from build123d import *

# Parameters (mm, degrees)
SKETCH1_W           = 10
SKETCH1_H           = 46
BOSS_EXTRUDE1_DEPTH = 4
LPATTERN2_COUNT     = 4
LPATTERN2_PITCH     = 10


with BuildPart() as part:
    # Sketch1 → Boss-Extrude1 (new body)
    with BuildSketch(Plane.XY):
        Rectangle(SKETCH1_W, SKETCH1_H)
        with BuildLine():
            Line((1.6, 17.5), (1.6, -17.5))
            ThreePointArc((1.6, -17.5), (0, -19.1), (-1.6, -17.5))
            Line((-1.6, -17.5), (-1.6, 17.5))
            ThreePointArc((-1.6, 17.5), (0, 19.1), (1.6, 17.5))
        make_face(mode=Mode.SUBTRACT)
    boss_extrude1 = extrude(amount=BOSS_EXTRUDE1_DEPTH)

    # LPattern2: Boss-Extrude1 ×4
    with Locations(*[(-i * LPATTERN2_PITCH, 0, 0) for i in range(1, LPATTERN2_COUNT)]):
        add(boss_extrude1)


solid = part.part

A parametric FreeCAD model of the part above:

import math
import FreeCAD as App
import Part
import Sketcher

V = App.Vector
Q = App.Units.Quantity

doc = App.newDocument("Part")
body = doc.addObject("PartDesign::Body", "Body")

sketch1 = body.newObject("Sketcher::SketchObject", "Sketch")
sketch1.AttachmentSupport = (doc.getObject("XY_Plane"), [""])
sketch1.MapMode = "FlatFace"
sketch1.addGeometry([
    Part.LineSegment(V(-5, 23, 0), V(-5, -23, 0)),
    Part.LineSegment(V(-5, -23, 0), V(5, -23, 0)),
    Part.LineSegment(V(5, -23, 0), V(5, 23, 0)),
    Part.LineSegment(V(5, 23, 0), V(-5, 23, 0)),
    Part.ArcOfCircle(Part.Circle(V(0, 17.5, 0), V(0, 0, 1), 1.6), math.radians(0), math.radians(180)),
    Part.LineSegment(V(1.6, 17.5, 0), V(1.6, -17.5, 0)),
    Part.ArcOfCircle(Part.Circle(V(0, -17.5, 0), V(0, 0, 1), 1.6), math.radians(180), math.radians(360)),
    Part.LineSegment(V(-1.6, -17.5, 0), V(-1.6, 17.5, 0)),
], False)
sketch1.addConstraint([
    Sketcher.Constraint("Coincident", 0, 2, 1, 1),
    Sketcher.Constraint("Coincident", 1, 2, 2, 1),
    Sketcher.Constraint("Coincident", 2, 2, 3, 1),
    Sketcher.Constraint("Coincident", 3, 2, 0, 1),
    Sketcher.Constraint("Tangent", 4, 1, 5, 1),
    Sketcher.Constraint("Tangent", 5, 2, 6, 2),
    Sketcher.Constraint("Tangent", 6, 1, 7, 1),
    Sketcher.Constraint("Tangent", 7, 2, 4, 2),
    Sketcher.Constraint("Vertical", 0),
    Sketcher.Constraint("Horizontal", 1),
    Sketcher.Constraint("Vertical", 2),
    Sketcher.Constraint("Horizontal", 3),
    Sketcher.Constraint("Vertical", 5),
    Sketcher.Constraint("Vertical", 7),
    Sketcher.Constraint("Symmetric", 4, 3, 6, 3, -1, 1),
    Sketcher.Constraint("Symmetric", 0, 2, 2, 2, -1, 1),
    Sketcher.Constraint("Radius", 4, Q("1.6 mm")),
    Sketcher.Constraint("DistanceX", 1, 1, 1, 2, Q("10 mm")),
    Sketcher.Constraint("DistanceY", 0, 2, 0, 1, Q("46 mm")),
    Sketcher.Constraint("DistanceY", 5, 2, 5, 1, Q("35 mm")),
])
pad1 = body.newObject("PartDesign::Pad", "Pad")
pad1.Profile = sketch1
pad1.Length = 4
doc.recompute()

linearpattern = body.newObject("PartDesign::LinearPattern", "LinearPattern")
linearpattern.Originals = [pad1]
linearpattern.Direction = (doc.getObject("X_Axis"), [""])
linearpattern.Mode = "offset"
linearpattern.Offset = 10
linearpattern.Occurrences = 4
linearpattern.Reversed = True
body.Tip = linearpattern

doc.recompute()
